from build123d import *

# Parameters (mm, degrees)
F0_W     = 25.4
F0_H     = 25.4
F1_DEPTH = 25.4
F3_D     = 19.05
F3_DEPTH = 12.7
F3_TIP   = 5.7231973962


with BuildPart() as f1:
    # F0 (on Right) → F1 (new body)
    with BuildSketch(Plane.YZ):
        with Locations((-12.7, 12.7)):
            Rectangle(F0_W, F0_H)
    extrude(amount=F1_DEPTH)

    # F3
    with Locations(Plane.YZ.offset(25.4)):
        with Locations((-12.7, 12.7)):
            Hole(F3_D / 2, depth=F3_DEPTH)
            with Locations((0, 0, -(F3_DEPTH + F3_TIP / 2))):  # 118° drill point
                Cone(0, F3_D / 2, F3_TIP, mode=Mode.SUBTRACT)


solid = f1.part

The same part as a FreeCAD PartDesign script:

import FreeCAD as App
import Part
import Sketcher
from FreeCAD import Vector
Q = App.Units.Quantity

doc = App.newDocument("Part")
body = doc.addObject("PartDesign::Body", "Body")

# Sketch on YZ plane
sketch1 = body.newObject("Sketcher::SketchObject", "Sketch")
sketch1.AttachmentSupport = (doc.getObject("YZ_Plane"), [""])
sketch1.MapMode = "FlatFace"
sketch1.addGeometry([
    Part.LineSegment(Vector(-25, 25, 0), Vector(-25, 0, 0)),
    Part.LineSegment(Vector(-25, 0, 0), Vector(0, 0, 0)),
    Part.LineSegment(Vector(0, 0, 0), Vector(0, 25, 0)),
    Part.LineSegment(Vector(0, 25, 0), Vector(-25, 25, 0)),
], False)
sketch1.addConstraint([
    Sketcher.Constraint("Coincident", 0, 2, 1, 1),
    Sketcher.Constraint("Coincident", 1, 2, 2, 1),
    Sketcher.Constraint("Coincident", 2, 2, 3, 1),
    Sketcher.Constraint("Coincident", 3, 2, 0, 1),
    Sketcher.Constraint("Vertical", 0),
    Sketcher.Constraint("Horizontal", 1),
    Sketcher.Constraint("Vertical", 2),
    Sketcher.Constraint("Horizontal", 3),
    Sketcher.Constraint("Coincident", 1, 2, -1, 1),
    Sketcher.Constraint("Equal", 3, 0),
    Sketcher.Constraint("DistanceX", 1, 1, 1, 2, Q("1 in")),
])
pad1 = body.newObject("PartDesign::Pad", "Pad")
pad1.Profile = sketch1
pad1.Length = Q("1 in")

# Sketch on YZ plane
sketch2 = body.newObject("Sketcher::SketchObject", "Sketch001")
sketch2.AttachmentSupport = (doc.getObject("YZ_Plane"), [""])
sketch2.MapMode = "FlatFace"
sketch2.AttachmentOffset = App.Placement(Vector(0, 0, 1 * 25.4), App.Rotation())
sketch2.addGeometry(Part.Circle(Vector(-13, 13, 0), Vector(0, 0, 1), 10), False)
sketch2.addConstraint([
    Sketcher.Constraint("Diameter", 0, Q("0.75 in")),
    Sketcher.Constraint("DistanceX", 0, 3, -1, 1, Q("0.5 in")),
    Sketcher.Constraint("DistanceY", -1, 1, 0, 3, Q("0.5 in")),
])
doc.recompute()
hole = body.newObject("PartDesign::Hole", "Hole")
hole.Profile = sketch2
hole.ThreadType = "None"
hole.Diameter = Q("0.75 in")
hole.DepthType = "Dimension"
hole.Depth = Q("0.5 in")
hole.DrillPoint = "Angled"
hole.DrillPointAngle = 118

doc.recompute()
